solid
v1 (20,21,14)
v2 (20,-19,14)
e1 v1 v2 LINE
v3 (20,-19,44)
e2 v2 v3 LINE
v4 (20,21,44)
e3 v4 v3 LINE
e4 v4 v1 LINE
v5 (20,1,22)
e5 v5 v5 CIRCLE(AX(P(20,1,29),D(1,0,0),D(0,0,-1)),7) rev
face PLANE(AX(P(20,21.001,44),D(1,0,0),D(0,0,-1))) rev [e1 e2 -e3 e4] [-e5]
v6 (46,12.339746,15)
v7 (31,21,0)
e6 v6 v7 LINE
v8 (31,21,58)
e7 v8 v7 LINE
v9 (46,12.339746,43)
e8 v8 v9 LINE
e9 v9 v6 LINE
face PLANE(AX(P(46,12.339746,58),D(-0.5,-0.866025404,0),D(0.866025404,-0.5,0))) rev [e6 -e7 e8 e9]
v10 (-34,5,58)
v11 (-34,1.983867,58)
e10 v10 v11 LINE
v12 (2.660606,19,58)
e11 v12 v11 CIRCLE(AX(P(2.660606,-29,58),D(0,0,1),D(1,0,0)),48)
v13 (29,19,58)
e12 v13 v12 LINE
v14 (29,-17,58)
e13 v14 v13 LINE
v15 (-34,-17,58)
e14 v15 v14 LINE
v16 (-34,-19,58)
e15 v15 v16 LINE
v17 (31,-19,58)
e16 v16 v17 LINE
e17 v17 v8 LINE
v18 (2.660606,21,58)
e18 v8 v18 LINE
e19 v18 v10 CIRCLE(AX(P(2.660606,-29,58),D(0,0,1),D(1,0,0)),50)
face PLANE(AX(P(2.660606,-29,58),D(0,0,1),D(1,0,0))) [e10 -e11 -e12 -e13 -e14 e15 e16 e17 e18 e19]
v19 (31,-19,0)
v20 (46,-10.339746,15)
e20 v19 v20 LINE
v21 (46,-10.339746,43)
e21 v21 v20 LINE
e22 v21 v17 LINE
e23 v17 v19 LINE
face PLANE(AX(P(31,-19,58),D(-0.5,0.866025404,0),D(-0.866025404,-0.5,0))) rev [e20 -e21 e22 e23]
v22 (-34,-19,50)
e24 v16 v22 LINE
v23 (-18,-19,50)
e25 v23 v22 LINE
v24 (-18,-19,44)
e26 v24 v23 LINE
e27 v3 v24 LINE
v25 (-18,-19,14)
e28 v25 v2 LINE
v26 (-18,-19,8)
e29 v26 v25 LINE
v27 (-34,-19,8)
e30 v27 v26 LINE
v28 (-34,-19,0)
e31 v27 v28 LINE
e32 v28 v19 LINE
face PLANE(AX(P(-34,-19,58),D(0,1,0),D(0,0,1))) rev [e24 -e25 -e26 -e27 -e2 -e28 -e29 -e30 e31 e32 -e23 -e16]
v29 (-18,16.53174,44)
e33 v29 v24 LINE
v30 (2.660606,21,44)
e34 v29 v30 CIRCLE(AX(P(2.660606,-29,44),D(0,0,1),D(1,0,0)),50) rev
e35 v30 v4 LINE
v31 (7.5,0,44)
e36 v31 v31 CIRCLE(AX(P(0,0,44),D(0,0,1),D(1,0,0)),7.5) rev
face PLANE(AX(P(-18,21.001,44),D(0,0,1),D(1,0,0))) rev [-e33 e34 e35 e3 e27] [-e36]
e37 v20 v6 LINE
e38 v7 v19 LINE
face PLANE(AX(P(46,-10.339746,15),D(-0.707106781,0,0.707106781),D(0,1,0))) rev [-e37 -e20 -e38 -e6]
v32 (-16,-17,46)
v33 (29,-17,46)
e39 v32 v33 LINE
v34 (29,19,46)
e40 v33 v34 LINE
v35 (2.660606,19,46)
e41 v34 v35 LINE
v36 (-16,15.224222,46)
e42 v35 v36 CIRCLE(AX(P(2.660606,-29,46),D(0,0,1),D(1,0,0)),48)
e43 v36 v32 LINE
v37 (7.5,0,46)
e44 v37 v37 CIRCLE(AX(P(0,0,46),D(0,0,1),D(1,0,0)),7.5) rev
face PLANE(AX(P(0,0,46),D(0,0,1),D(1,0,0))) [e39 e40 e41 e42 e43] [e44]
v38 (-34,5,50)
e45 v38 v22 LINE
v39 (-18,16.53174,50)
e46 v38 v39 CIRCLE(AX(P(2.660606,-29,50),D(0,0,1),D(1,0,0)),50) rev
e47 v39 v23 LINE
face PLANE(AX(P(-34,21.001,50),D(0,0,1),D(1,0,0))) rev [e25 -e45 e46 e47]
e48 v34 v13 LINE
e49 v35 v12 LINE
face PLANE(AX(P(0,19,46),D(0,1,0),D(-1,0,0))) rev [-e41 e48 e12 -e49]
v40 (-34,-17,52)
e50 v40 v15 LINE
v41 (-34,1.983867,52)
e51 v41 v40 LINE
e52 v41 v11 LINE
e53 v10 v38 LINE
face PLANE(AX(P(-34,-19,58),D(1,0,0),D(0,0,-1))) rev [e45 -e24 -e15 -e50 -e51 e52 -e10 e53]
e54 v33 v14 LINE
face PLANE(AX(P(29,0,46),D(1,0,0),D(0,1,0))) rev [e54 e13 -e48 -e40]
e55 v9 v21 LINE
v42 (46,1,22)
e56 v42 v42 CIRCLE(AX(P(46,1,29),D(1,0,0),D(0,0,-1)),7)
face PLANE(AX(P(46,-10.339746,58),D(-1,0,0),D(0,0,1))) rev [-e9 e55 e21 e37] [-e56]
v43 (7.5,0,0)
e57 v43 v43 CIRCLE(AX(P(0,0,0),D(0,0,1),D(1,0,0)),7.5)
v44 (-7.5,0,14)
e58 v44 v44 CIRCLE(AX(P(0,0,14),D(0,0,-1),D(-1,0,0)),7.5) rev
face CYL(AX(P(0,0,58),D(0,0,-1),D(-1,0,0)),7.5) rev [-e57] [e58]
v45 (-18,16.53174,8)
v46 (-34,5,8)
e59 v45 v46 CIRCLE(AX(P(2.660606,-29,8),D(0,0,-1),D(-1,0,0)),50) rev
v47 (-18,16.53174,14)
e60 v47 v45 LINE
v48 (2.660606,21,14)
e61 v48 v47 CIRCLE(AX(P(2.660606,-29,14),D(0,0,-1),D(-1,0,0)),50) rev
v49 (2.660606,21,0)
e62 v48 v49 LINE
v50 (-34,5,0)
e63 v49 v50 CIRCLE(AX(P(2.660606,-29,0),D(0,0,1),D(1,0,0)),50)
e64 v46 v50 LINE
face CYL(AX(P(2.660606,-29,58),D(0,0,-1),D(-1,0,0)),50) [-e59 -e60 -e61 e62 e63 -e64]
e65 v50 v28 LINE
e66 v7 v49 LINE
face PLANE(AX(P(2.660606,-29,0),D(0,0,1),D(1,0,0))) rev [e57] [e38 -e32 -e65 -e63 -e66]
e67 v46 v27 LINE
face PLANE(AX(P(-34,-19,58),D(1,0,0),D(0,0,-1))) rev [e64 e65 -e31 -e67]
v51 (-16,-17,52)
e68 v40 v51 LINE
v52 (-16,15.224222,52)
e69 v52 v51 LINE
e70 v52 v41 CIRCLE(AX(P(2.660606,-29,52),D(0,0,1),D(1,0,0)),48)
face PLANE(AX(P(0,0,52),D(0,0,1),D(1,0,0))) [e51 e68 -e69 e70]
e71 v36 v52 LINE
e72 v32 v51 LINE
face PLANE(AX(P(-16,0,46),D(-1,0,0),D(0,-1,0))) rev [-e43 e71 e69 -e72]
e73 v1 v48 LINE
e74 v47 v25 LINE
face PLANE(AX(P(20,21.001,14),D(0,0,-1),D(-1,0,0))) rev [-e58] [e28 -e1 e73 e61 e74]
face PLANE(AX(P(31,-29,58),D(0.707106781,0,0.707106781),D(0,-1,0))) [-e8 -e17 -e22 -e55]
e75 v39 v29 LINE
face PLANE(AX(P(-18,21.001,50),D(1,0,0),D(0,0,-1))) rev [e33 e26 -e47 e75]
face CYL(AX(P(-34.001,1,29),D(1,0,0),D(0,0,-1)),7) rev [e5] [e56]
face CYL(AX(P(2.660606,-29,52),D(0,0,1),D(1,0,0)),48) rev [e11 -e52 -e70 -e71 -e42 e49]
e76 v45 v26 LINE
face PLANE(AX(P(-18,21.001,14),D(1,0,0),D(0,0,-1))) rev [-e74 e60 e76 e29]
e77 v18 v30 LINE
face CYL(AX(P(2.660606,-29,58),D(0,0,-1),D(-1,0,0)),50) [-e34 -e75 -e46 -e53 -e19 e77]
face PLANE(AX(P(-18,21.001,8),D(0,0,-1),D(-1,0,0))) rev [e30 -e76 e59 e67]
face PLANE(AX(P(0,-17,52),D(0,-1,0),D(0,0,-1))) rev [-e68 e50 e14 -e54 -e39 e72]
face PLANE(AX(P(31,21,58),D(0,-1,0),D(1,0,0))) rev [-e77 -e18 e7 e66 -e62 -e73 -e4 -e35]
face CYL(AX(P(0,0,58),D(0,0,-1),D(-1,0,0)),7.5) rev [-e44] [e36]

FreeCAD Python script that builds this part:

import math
import FreeCAD as App
import Part
import Sketcher

V = App.Vector
Q = App.Units.Quantity


def edges_at(feature, points):
    """Names of the edges that pass closest to the given points."""
    edges = feature.Shape.Edges
    near = lambda p: min(range(len(edges)), key=lambda i: edges[i].distToShape(Part.Vertex(*p))[0])
    return sorted({f"Edge{near(p) + 1}" for p in points})

doc = App.newDocument("Part")
body = doc.addObject("PartDesign::Body", "Body")

# Sketch on XY plane
sketch1 = doc.addObject("Sketcher::SketchObject", "Sketch")
body.addObject(sketch1)
sketch1.AttachmentSupport = (doc.XY_Plane, [""])
sketch1.MapMode = "FlatFace"
sketch1.addGeometry([
    Part.LineSegment(V(-34, -19, 0), V(31, -19, 0)),  # 0
    Part.LineSegment(V(31, -19, 0), V(46, -10, 0)),  # 1
    Part.LineSegment(V(46, -10, 0), V(46, 12, 0)),  # 2
    Part.LineSegment(V(46, 12, 0), V(31, 21, 0)),  # 3
    Part.LineSegment(V(31, 21, 0), V(3, 21, 0)),  # 4
    Part.ArcOfCircle(Part.Circle(V(3, -29, 0), V(0, 0, 1), 50), math.radians(90), math.radians(137)),  # 5
    Part.LineSegment(V(-34, 5, 0), V(-34, -19, 0)),  # 6
    Part.Circle(V(0, 0, 0), V(0, 0, 1), 8),  # 7
], False)
sketch1.addConstraint([
    Sketcher.Constraint("Coincident", 0, 2, 1, 1),
    Sketcher.Constraint("Coincident", 1, 2, 2, 1),
    Sketcher.Constraint("Coincident", 2, 2, 3, 1),
    Sketcher.Constraint("Coincident", 3, 2, 4, 1),
    Sketcher.Constraint("Tangent", 4, 2, 5, 1),
    Sketcher.Constraint("Coincident", 5, 2, 6, 1),
    Sketcher.Constraint("Coincident", 6, 2, 0, 1),
    Sketcher.Constraint("Horizontal", 0),
    Sketcher.Constraint("Vertical", 2),
    Sketcher.Constraint("Horizontal", 4),
    Sketcher.Constraint("Vertical", 6),
    Sketcher.Constraint("Coincident", 7, 3, -1, 1),
    Sketcher.Constraint("Vertical", 0, 2, 3, 2),
    Sketcher.Constraint("Equal", 1, 3),
    Sketcher.Constraint("Diameter", 7, Q("15 mm")),
    Sketcher.Constraint("Radius", 5, Q("50 mm")),
    Sketcher.Constraint("DistanceX", 0, 1, 0, 2, Q("65 mm")),
    Sketcher.Constraint("DistanceY", 6, 2, 6, 1, Q("24 mm")),
    Sketcher.Constraint("Angle", 1, Q("30 deg")),
    Sketcher.Constraint("DistanceY", 5, 3, -1, 1, Q("29 mm")),
    Sketcher.Constraint("DistanceX", -1, 1, 0, 2, Q("31 mm")),
    Sketcher.Constraint("DistanceY", 0, 2, -1, 1, Q("19 mm")),
    Sketcher.Constraint("DistanceX", -1, 1, 1, 2, Q("46 mm")),
])
pad1 = doc.addObject("PartDesign::Pad", "Pad")
body.addObject(pad1)
pad1.Profile = sketch1
pad1.Length = 58

# Sketch on XZ plane
sketch2 = doc.addObject("Sketcher::SketchObject", "Sketch001")
body.addObject(sketch2)
sketch2.AttachmentSupport = (doc.XZ_Plane, [""])
sketch2.MapMode = "FlatFace"
sketch2.AttachmentOffset = App.Placement(V(0, 0, 19), App.Rotation())
sketch2.addGeometry([
    Part.LineSegment(V(-18, 50, 0), V(-34, 50, 0)),  # 0
    Part.LineSegment(V(-34, 50, 0), V(-34, 8, 0)),  # 1
    Part.LineSegment(V(-34, 8, 0), V(-18, 8, 0)),  # 2
    Part.LineSegment(V(-18, 8, 0), V(-18, 14, 0)),  # 3
    Part.LineSegment(V(-18, 14, 0), V(20, 14, 0)),  # 4
    Part.LineSegment(V(20, 14, 0), V(20, 44, 0)),  # 5
    Part.LineSegment(V(20, 44, 0), V(-18, 44, 0)),  # 6
    Part.LineSegment(V(-18, 44, 0), V(-18, 50, 0)),  # 7
], False)
sketch2.addConstraint([
    Sketcher.Constraint("Coincident", 0, 2, 1, 1),
    Sketcher.Constraint("Coincident", 1, 2, 2, 1),
    Sketcher.Constraint("Coincident", 2, 2, 3, 1),
    Sketcher.Constraint("Coincident", 3, 2, 4, 1),
    Sketcher.Constraint("Coincident", 4, 2, 5, 1),
    Sketcher.Constraint("Coincident", 5, 2, 6, 1),
    Sketcher.Constraint("Coincident", 6, 2, 7, 1),
    Sketcher.Constraint("Coincident", 7, 2, 0, 1),
    Sketcher.Constraint("Horizontal", 0),
    Sketcher.Constraint("Vertical", 1),
    Sketcher.Constraint("Horizontal", 2),
    Sketcher.Constraint("Vertical", 3),
    Sketcher.Constraint("Horizontal", 4),
    Sketcher.Constraint("Vertical", 5),
    Sketcher.Constraint("Horizontal", 6),
    Sketcher.Constraint("Vertical", 7),
    Sketcher.Constraint("Vertical", 3, 2, 6, 2),
    Sketcher.Constraint("Equal", 3, 7),
    Sketcher.Constraint("DistanceX", 0, 2, 0, 1, Q("16 mm")),
    Sketcher.Constraint("DistanceX", 4, 1, 4, 2, Q("38 mm")),
    Sketcher.Constraint("DistanceY", 1, 2, 1, 1, Q("42 mm")),
    Sketcher.Constraint("DistanceY", 3, 1, 3, 2, Q("6 mm")),
    Sketcher.Constraint("DistanceX", 0, 2, -1, 1, Q("34 mm")),
    Sketcher.Constraint("DistanceY", -1, 1, 0, 2, Q("50 mm")),
])
pocket1 = doc.addObject("PartDesign::Pocket", "Pocket")
body.addObject(pocket1)
pocket1.Profile = sketch2
pocket1.Type = "UpToFirst"

# Sketch on YZ plane
sketch3 = doc.addObject("Sketcher::SketchObject", "Sketch002")
body.addObject(sketch3)
sketch3.AttachmentSupport = (doc.YZ_Plane, [""])
sketch3.MapMode = "FlatFace"
sketch3.AttachmentOffset = App.Placement(V(0, 0, 46), App.Rotation())
sketch3.addGeometry(Part.Circle(V(1, 29, 0), V(0, 0, 1), 7), False)
sketch3.addConstraint([
    Sketcher.Constraint("Diameter", 0, Q("14 mm")),
    Sketcher.Constraint("DistanceX", -1, 1, 0, 3, Q("1 mm")),
    Sketcher.Constraint("DistanceY", -1, 1, 0, 3, Q("29 mm")),
])
pocket2 = doc.addObject("PartDesign::Pocket", "Pocket001")
body.addObject(pocket2)
pocket2.Profile = sketch3
pocket2.Type = "UpToFirst"
doc.recompute()

chamfer = doc.addObject("PartDesign::Chamfer", "Chamfer")
body.addObject(chamfer)
chamfer.Base = (pocket2, edges_at(pocket2, [(46, 1, 0), (46, 1, 58)]))
chamfer.Size = 15

# Sketch on XY plane
sketch4 = doc.addObject("Sketcher::SketchObject", "Sketch003")
body.addObject(sketch4)
sketch4.AttachmentSupport = (doc.XY_Plane, [""])
sketch4.MapMode = "FlatFace"
sketch4.AttachmentOffset = App.Placement(V(0, 0, 58), App.Rotation())
sketch4.addGeometry([
    Part.ArcOfCircle(Part.Circle(V(2.7, -29, 0), V(0, 0, 1), 48), math.radians(137.16), math.radians(139.8)),  # 0
    Part.LineSegment(V(-34, 2, 0), V(-34, -17, 0)),  # 1
    Part.LineSegment(V(-34, -17, 0), V(-16, -17, 0)),  # 2
    Part.LineSegment(V(-16, -17, 0), V(-16, 15.2, 0)),  # 3
    Part.ArcOfCircle(Part.Circle(V(2.7, -29, 0), V(0, 0, 1), 48), math.radians(113), math.radians(137)),  # 4
], False)
sketch4.addConstraint([
    Sketcher.Constraint("Coincident", 0, 2, 1, 1),
    Sketcher.Constraint("Coincident", 1, 2, 2, 1),
    Sketcher.Constraint("Coincident", 2, 2, 3, 1),
    Sketcher.Constraint("Coincident", 3, 2, 4, 1),
    Sketcher.Constraint("Tangent", 4, 2, 0, 1),
    Sketcher.Constraint("Vertical", 1),
    Sketcher.Constraint("Horizontal", 2),
    Sketcher.Constraint("Vertical", 3),
    Sketcher.Constraint("Radius", 4, Q("48 mm")),
    Sketcher.Constraint("DistanceX", 2, 1, 2, 2, Q("18 mm")),
    Sketcher.Constraint("DistanceY", 0, 3, -1, 1, Q("29.000002 mm")),
    Sketcher.Constraint("DistanceY", 4, 3, -1, 1, Q("29 mm")),
    Sketcher.Constraint("DistanceX", 0, 2, -1, 1, Q("34 mm")),
    Sketcher.Constraint("DistanceY", 1, 2, -1, 1, Q("17 mm")),
    Sketcher.Constraint("DistanceY", -1, 1, 4, 2, Q("3.64 mm")),
    Sketcher.Constraint("DistanceY", 3, 1, 3, 2, Q("32.224222 mm")),
])
pocket3 = doc.addObject("PartDesign::Pocket", "Pocket002")
body.addObject(pocket3)
pocket3.Profile = sketch4
pocket3.Length = 6

# Sketch on XY plane
sketch5 = doc.addObject("Sketcher::SketchObject", "Sketch004")
body.addObject(sketch5)
sketch5.AttachmentSupport = (doc.XY_Plane, [""])
sketch5.MapMode = "FlatFace"
sketch5.AttachmentOffset = App.Placement(V(0, 0, 58), App.Rotation())
sketch5.addGeometry([
    Part.LineSegment(V(-16, 15, 0), V(-16, -17, 0)),  # 0
    Part.LineSegment(V(-16, -17, 0), V(29, -17, 0)),  # 1
    Part.LineSegment(V(29, -17, 0), V(29, 19, 0)),  # 2
    Part.LineSegment(V(29, 19, 0), V(3, 19, 0)),  # 3
    Part.ArcOfCircle(Part.Circle(V(3, -29, 0), V(0, 0, 1), 48), math.radians(90), math.radians(113)),  # 4
    Part.Circle(V(0, 0, 0), V(0, 0, 1), 8),  # 5
], False)
sketch5.addConstraint([
    Sketcher.Constraint("Coincident", 0, 2, 1, 1),
    Sketcher.Constraint("Coincident", 1, 2, 2, 1),
    Sketcher.Constraint("Coincident", 2, 2, 3, 1),
    Sketcher.Constraint("Tangent", 3, 2, 4, 1),
    Sketcher.Constraint("Coincident", 4, 2, 0, 1),
    Sketcher.Constraint("Vertical", 0),
    Sketcher.Constraint("Horizontal", 1),
    Sketcher.Constraint("Vertical", 2),
    Sketcher.Constraint("Horizontal", 3),
    Sketcher.Constraint("Coincident", 5, 3, -1, 1),
    Sketcher.Constraint("Diameter", 5, Q("15 mm")),
    Sketcher.Constraint("Radius", 4, Q("48 mm")),
    Sketcher.Constraint("DistanceX", 1, 1, 1, 2, Q("45 mm")),
    Sketcher.Constraint("DistanceY", 2, 1, 2, 2, Q("36 mm")),
    Sketcher.Constraint("DistanceY", 4, 3, -1, 1, Q("29 mm")),
    Sketcher.Constraint("DistanceX", 0, 2, -1, 1, Q("16 mm")),
    Sketcher.Constraint("DistanceY", 0, 2, 0, 1, Q("32.224222 mm")),
])
pocket4 = doc.addObject("PartDesign::Pocket", "Pocket003")
body.addObject(pocket4)
pocket4.Profile = sketch5
pocket4.Length = 12

doc.recompute()
